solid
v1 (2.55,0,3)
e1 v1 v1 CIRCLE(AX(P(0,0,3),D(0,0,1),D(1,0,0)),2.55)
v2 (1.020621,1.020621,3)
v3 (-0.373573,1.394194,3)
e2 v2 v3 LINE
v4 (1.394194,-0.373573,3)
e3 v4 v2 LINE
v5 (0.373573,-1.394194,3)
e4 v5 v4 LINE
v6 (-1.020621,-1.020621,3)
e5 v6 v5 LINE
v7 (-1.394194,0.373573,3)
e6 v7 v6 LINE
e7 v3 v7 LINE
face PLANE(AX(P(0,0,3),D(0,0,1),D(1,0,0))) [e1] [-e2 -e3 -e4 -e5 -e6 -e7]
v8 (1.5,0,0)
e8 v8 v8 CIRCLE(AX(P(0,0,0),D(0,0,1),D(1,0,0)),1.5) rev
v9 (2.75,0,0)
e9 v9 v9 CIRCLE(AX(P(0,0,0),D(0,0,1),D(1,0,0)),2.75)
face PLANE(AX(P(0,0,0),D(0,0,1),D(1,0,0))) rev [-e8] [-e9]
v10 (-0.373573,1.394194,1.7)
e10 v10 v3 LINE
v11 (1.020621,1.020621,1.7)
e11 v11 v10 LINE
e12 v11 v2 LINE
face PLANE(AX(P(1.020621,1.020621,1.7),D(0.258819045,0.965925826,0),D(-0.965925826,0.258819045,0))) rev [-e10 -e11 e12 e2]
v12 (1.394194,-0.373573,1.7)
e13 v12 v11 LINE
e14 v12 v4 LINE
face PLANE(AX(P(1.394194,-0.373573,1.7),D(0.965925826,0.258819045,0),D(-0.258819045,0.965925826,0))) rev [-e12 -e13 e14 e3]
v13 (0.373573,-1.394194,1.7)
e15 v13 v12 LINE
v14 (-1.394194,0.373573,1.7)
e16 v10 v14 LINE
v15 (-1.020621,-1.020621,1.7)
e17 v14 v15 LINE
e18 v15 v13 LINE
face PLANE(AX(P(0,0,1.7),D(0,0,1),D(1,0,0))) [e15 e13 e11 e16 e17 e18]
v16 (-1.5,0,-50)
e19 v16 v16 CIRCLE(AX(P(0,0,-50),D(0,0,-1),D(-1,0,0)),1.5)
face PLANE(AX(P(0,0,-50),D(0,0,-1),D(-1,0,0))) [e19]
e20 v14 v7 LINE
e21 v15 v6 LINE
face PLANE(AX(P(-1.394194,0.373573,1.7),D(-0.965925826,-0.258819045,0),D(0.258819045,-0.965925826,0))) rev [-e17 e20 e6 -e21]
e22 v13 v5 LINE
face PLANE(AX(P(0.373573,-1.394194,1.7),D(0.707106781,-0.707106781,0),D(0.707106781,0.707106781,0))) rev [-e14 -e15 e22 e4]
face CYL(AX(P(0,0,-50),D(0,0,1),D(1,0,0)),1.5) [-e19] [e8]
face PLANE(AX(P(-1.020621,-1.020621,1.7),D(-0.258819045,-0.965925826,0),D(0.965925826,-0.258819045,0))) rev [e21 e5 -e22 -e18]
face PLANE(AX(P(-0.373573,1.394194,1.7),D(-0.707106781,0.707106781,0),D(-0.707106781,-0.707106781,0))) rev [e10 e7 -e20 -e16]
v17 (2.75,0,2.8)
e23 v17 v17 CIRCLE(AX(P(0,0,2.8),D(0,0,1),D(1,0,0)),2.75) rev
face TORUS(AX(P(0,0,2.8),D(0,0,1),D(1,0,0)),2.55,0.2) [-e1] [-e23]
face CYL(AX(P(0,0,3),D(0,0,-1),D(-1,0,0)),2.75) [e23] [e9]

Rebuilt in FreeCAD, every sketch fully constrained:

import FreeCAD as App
import Part
import Sketcher
Q = App.Units.Quantity


def edges_at(feature, points):
    """Names of the edges that pass closest to the given points."""
    edges = feature.Shape.Edges
    near = lambda p: min(range(len(edges)), key=lambda i: edges[i].distToShape(Part.Vertex(*p))[0])
    return sorted({f"Edge{near(p) + 1}" for p in points})


def add_polygon(sketch, points):
    """Adds a closed chain of lines whose ends are joined by coincident constraints."""
    first, n = sketch.GeometryCount, len(points)
    for a, b in zip(points, points[1:] + points[:1]):
        sketch.addGeometry(Part.LineSegment(App.Vector(*a, 0), App.Vector(*b, 0)), False)
    for i in range(n):
        sketch.addConstraint(Sketcher.Constraint("Coincident", first + i, 2, first + (i + 1) % n, 1))

doc = App.newDocument("Part")
body = doc.addObject("PartDesign::Body", "Body")

sketch1 = body.newObject("Sketcher::SketchObject", "Sketch")
sketch1.AttachmentSupport = (doc.getObject("XY_Plane"), [""])
sketch1.MapMode = "FlatFace"
sketch1.addGeometry(Part.Circle(App.Vector(0, 0, 0), App.Vector(0, 0, 1), 2.8), False)
sketch1.addConstraint(Sketcher.Constraint("Coincident", 0, 3, -1, 1))
sketch1.addConstraint(Sketcher.Constraint("Diameter", 0, Q("5.5 mm")))
pad1 = body.newObject("PartDesign::Pad", "Pad")
pad1.Profile = sketch1
pad1.Length = 3

sketch2 = body.newObject("Sketcher::SketchObject", "Sketch001")
sketch2.AttachmentSupport = (doc.getObject("XY_Plane"), [""])
sketch2.MapMode = "FlatFace"
sketch2.AttachmentOffset = App.Placement(App.Vector(0, 0, 3), App.Rotation())
add_polygon(sketch2, [(-1, -1), (0.4, -1.4), (1.4, -0.4), (1, 1), (-0.4, 1.4), (-1.4, 0.4)])
sketch2.addConstraint(Sketcher.Constraint("Symmetric", 0, 2, 3, 2, -1, 1))
sketch2.addConstraint(Sketcher.Constraint("Symmetric", 1, 2, 4, 2, -1, 1))
sketch2.addConstraint(Sketcher.Constraint("Symmetric", 2, 2, 5, 2, -1, 1))
sketch2.addConstraint(Sketcher.Constraint("Equal", 0, 1))
sketch2.addConstraint(Sketcher.Constraint("Equal", 1, 2))
sketch2.addConstraint(Sketcher.Constraint("Angle", 0, Q("-15 deg")))
sketch2.addConstraint(Sketcher.Constraint("Angle", 1, Q("45 deg")))
sketch2.addConstraint(Sketcher.Constraint("Angle", 2, Q("105 deg")))
sketch2.addConstraint(Sketcher.Constraint("DistanceX", -1, 1, 2, 2, Q("1.020621 mm")))
pocket1 = body.newObject("PartDesign::Pocket", "Pocket")
pocket1.Profile = sketch2
pocket1.Length = 1.3

sketch3 = body.newObject("Sketcher::SketchObject", "Sketch002")
sketch3.AttachmentSupport = (doc.getObject("XY_Plane"), [""])
sketch3.MapMode = "FlatFace"
sketch3.addGeometry(Part.Circle(App.Vector(0, 0, 0), App.Vector(0, 0, 1), 1.5), False)
sketch3.addConstraint(Sketcher.Constraint("Coincident", 0, 3, -1, 1))
sketch3.addConstraint(Sketcher.Constraint("Diameter", 0, Q("3 mm")))
pad2 = body.newObject("PartDesign::Pad", "Pad001")
pad2.Profile = sketch3
pad2.Length = 50
pad2.Reversed = True
doc.recompute()

fillet = body.newObject("PartDesign::Fillet", "Fillet")
fillet.Base = (pad2, edges_at(pad2, [(-2.75, 0, 3)]))
fillet.Radius = 0.2

doc.recompute()
